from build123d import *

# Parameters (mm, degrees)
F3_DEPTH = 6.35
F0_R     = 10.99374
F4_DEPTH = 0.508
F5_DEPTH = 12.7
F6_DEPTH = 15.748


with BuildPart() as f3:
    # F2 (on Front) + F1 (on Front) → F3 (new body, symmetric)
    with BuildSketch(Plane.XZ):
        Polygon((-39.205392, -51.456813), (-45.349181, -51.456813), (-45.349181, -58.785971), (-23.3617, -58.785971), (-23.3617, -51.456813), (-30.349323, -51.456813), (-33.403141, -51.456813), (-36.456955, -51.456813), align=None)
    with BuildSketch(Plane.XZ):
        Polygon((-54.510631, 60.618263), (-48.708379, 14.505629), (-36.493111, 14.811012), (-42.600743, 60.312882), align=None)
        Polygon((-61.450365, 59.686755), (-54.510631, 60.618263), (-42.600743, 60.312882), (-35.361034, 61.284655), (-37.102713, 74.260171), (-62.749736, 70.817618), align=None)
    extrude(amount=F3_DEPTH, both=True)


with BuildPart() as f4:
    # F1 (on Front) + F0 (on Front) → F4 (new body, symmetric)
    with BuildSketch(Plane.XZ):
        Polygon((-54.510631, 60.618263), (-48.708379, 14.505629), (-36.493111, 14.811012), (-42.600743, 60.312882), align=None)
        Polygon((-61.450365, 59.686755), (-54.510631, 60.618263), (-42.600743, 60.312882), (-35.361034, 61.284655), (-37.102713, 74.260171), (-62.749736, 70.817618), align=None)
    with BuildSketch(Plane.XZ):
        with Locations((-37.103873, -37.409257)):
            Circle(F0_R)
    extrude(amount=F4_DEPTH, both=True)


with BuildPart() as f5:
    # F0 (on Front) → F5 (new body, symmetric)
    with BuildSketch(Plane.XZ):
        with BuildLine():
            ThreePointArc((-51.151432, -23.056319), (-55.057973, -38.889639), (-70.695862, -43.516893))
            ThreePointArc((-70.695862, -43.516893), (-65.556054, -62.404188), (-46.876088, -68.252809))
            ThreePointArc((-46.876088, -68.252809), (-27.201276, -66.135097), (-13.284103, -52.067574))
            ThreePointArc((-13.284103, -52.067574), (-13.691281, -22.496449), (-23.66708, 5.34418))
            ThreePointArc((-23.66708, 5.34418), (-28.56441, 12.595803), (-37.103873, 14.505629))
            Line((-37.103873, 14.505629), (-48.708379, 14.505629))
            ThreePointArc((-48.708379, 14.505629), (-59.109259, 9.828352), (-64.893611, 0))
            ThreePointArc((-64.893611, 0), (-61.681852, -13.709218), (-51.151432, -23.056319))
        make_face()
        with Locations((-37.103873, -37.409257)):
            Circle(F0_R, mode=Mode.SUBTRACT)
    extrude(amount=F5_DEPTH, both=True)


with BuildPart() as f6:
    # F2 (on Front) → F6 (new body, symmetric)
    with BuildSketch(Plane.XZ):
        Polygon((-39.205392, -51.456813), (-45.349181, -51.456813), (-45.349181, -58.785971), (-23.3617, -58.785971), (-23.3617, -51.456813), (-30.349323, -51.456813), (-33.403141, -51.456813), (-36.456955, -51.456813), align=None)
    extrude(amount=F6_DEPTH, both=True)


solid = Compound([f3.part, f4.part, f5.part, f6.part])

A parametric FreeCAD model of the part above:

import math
import FreeCAD as App
import Part
import Sketcher
from FreeCAD import Vector
Q = App.Units.Quantity


def add_polygon(sketch, points):
    """Adds a closed chain of lines whose ends are joined by coincident constraints."""
    first, n = sketch.GeometryCount, len(points)
    for a, b in zip(points, points[1:] + points[:1]):
        sketch.addGeometry(Part.LineSegment(App.Vector(*a, 0), App.Vector(*b, 0)), False)
    for i in range(n):
        sketch.addConstraint(Sketcher.Constraint("Coincident", first + i, 2, first + (i + 1) % n, 1))

doc = App.newDocument("Part")
body = doc.addObject("PartDesign::Body", "Body")
body.AllowCompound = True

# Sketch on XZ plane
sketch1 = body.newObject("Sketcher::SketchObject", "Sketch")
sketch1.AttachmentSupport = (doc.getObject("XZ_Plane"), [""])
sketch1.MapMode = "FlatFace"
add_polygon(sketch1, [(-45, -51), (-45, -59), (-23, -59), (-23, -51)])  # lines 0-3
add_polygon(sketch1, [(-55, 61), (-49, 15), (-36, 15), (-43, 60), (-35, 61), (-37, 74), (-63, 71), (-61, 60)])  # lines 4-11
sketch1.addConstraint([
    Sketcher.Constraint("Vertical", 0),
    Sketcher.Constraint("Horizontal", 1),
    Sketcher.Constraint("Vertical", 2),
    Sketcher.Constraint("Horizontal", 3),
    Sketcher.Constraint("Perpendicular", 6, 7),
    Sketcher.Constraint("Perpendicular", 7, 8),
    Sketcher.Constraint("Perpendicular", 8, 9),
    Sketcher.Constraint("Parallel", 9, 11),
    Sketcher.Constraint("DistanceX", 8, 2, 5, 2, Q("0.0240001 in")),
    Sketcher.Constraint("DistanceX", 1, 1, 1, 2, 21.987481),
    Sketcher.Constraint("DistanceY", 0, 2, 0, 1, 7.329158),
    Sketcher.Constraint("DistanceX", 1, 2, -1, 1, 23.3617),
    Sketcher.Constraint("DistanceY", 0, 2, 4, 2, 73.2916),
    Sketcher.Constraint("DistanceY", 10, 2, 7, 2, 1.5979),
    Sketcher.Constraint("Distance", 6, 45.909948),
    Sketcher.Constraint("DistanceY", 0, 2, -1, 1, 58.785971),
    Sketcher.Constraint("DistanceX", 4, 2, -1, 1, 48.708379),
    Sketcher.Constraint("DistanceX", 5, 2, -1, 1, 36.493111),
    Sketcher.Constraint("DistanceY", -1, 1, 8, 2, 74.260171),
    Sketcher.Constraint("DistanceX", 11, 2, -1, 1, 54.510631),
    Sketcher.Constraint("DistanceY", 5, 2, 6, 2, 45.50187),
    Sketcher.Constraint("DistanceX", 6, 2, 7, 2, 7.239709),
    Sketcher.Constraint("DistanceY", 4, 2, 9, 2, 56.311989),
    Sketcher.Constraint("DistanceX", 9, 2, 10, 2, 1.299371),
])
pad1 = body.newObject("PartDesign::Pad", "Pad")
pad1.Profile = sketch1
pad1.Length = Q("0.5 in")
pad1.Midplane = True
body2 = doc.addObject("PartDesign::Body", "Body001")
body2.AllowCompound = True

# Sketch on XZ plane
sketch2 = body2.newObject("Sketcher::SketchObject", "Sketch001")
sketch2.AttachmentSupport = (doc.getObject("XZ_Plane001"), [""])
sketch2.MapMode = "FlatFace"
add_polygon(sketch2, [(-55, 61), (-49, 15), (-36, 15), (-43, 60), (-35, 61), (-37, 74), (-63, 71), (-61, 60)])  # lines 0-7
sketch2.addGeometry(Part.Circle(Vector(-37, -37, 0), Vector(0, 0, 1), 11), False)  # 8
sketch2.addConstraint([
    Sketcher.Constraint("Perpendicular", 2, 3),
    Sketcher.Constraint("Perpendicular", 3, 4),
    Sketcher.Constraint("Perpendicular", 4, 5),
    Sketcher.Constraint("Parallel", 5, 7),
    Sketcher.Constraint("Diameter", 8, 21.98748),
    Sketcher.Constraint("DistanceX", 4, 2, 1, 2, Q("0.0240001 in")),
    Sketcher.Constraint("DistanceY", 6, 2, 3, 2, 1.5979),
    Sketcher.Constraint("Distance", 2, 45.909948),
    Sketcher.Constraint("DistanceX", 0, 2, -1, 1, 48.708379),
    Sketcher.Constraint("DistanceY", -1, 1, 0, 2, 14.505629),
    Sketcher.Constraint("DistanceX", 1, 2, -1, 1, 36.493111),
    Sketcher.Constraint("DistanceY", -1, 1, 4, 2, 74.260171),
    Sketcher.Constraint("DistanceX", 7, 2, -1, 1, 54.510631),
    Sketcher.Constraint("DistanceY", 8, 3, 1, 2, 52.220269),
    Sketcher.Constraint("DistanceY", 1, 2, 2, 2, 45.50187),
    Sketcher.Constraint("DistanceX", 2, 2, 8, 3, 5.49687),
    Sketcher.Constraint("DistanceX", 2, 2, 3, 2, 7.239709),
    Sketcher.Constraint("DistanceY", 0, 2, 5, 2, 56.311989),
    Sketcher.Constraint("DistanceX", 5, 2, 6, 2, 1.299371),
])
pad2 = body2.newObject("PartDesign::Pad", "Pad001")
pad2.Profile = sketch2
pad2.Length = Q("0.04 in")
pad2.Midplane = True
body3 = doc.addObject("PartDesign::Body", "Body002")

# Sketch on XZ plane
sketch3 = body3.newObject("Sketcher::SketchObject", "Sketch002")
sketch3.AttachmentSupport = (doc.getObject("XZ_Plane002"), [""])
sketch3.MapMode = "FlatFace"
sketch3.addGeometry([
    Part.ArcOfCircle(Part.Circle(Vector(-67, -28, 0), Vector(0, 0, 1), 16), math.radians(-103), math.radians(16)),  # 0
    Part.ArcOfCircle(Part.Circle(Vector(-51, -48, 0), Vector(0, 0, 1), 20), math.radians(167), math.radians(281)),  # 1
    Part.ArcOfCircle(Part.Circle(Vector(-40, -40, 0), Vector(0, 0, 1), 30), math.radians(-103), math.radians(-25)),  # 2
    Part.ArcOfCircle(Part.Circle(Vector(-102, -39, 0), Vector(0, 0, 1), 90), math.radians(-9), math.radians(29)),  # 3
    Part.ArcOfCircle(Part.Circle(Vector(-35, 3, 0), Vector(0, 0, 1), 12), math.radians(12), math.radians(99)),  # 4
    Part.LineSegment(Vector(-37, 15, 0), Vector(-49, 15, 0)),  # 5
    Part.ArcOfCircle(Part.Circle(Vector(-47, -4, 0), Vector(0, 0, 1), 19), math.radians(97), math.radians(167)),  # 6
    Part.ArcOfCircle(Part.Circle(Vector(-42, -2, 0), Vector(0, 0, 1), 23), math.radians(176), math.radians(246)),  # 7
    Part.Circle(Vector(-37, -37, 0), Vector(0, 0, 1), 11),  # 8
], False)
sketch3.addConstraint([
    Sketcher.Constraint("Coincident", 0, 1, 1, 1),
    Sketcher.Constraint("Coincident", 1, 2, 2, 1),
    Sketcher.Constraint("Coincident", 2, 2, 3, 1),
    Sketcher.Constraint("Coincident", 3, 2, 4, 1),
    Sketcher.Constraint("Coincident", 4, 2, 5, 1),
    Sketcher.Constraint("Coincident", 5, 2, 6, 1),
    Sketcher.Constraint("Coincident", 6, 2, 7, 1),
    Sketcher.Constraint("Coincident", 7, 2, 0, 2),
    Sketcher.Constraint("Horizontal", 5),
    Sketcher.Constraint("PointOnObject", 6, 2, -1),
    Sketcher.Constraint("Vertical", 8, 3, 4, 2),
    Sketcher.Constraint("Radius", 2, 29.521002),
    Sketcher.Constraint("Diameter", 8, 21.98748),
    Sketcher.Constraint("Radius", 3, 89.945632),
    Sketcher.Constraint("Radius", 4, 11.84323),
    Sketcher.Constraint("Radius", 6, 18.80206),
    Sketcher.Constraint("Radius", 7, 23.26965),
    Sketcher.Constraint("Radius", 0, 16.393246),
    Sketcher.Constraint("Radius", 1, 20.382987),
    Sketcher.Constraint("DistanceY", 8, 3, 6, 3, Q("1.3085002 in")),
    Sketcher.Constraint("DistanceX", 0, 3, -1, 1, 66.9121),
    Sketcher.Constraint("DistanceY", 1, 3, 4, 3, 51.076299),
    Sketcher.Constraint("DistanceX", 7, 3, 4, 3, 6.457202),
    Sketcher.Constraint("DistanceY", 0, 1, 0, 3, 15.950601),
    Sketcher.Constraint("DistanceX", 5, 2, 3, 2, 25.041299),
    Sketcher.Constraint("DistanceX", 5, 2, 5, 1, 11.604506),
    Sketcher.Constraint("DistanceY", 0, 3, -1, 1, 27.566292),
    Sketcher.Constraint("DistanceX", 2, 3, -1, 1, 40.015221),
    Sketcher.Constraint("DistanceY", 2, 3, -1, 1, 39.540128),
    Sketcher.Constraint("DistanceX", 3, 3, -1, 1, 102.201108),
    Sketcher.Constraint("DistanceX", 7, 3, -1, 1, 41.693338),
    Sketcher.Constraint("DistanceX", 1, 2, -1, 1, 46.876088),
    Sketcher.Constraint("DistanceX", 3, 2, -1, 1, 23.66708),
    Sketcher.Constraint("DistanceX", 6, 2, -1, 1, 64.893611),
])
pad3 = body3.newObject("PartDesign::Pad", "Pad002")
pad3.Profile = sketch3
pad3.Length = Q("1 in")
pad3.Midplane = True
body4 = doc.addObject("PartDesign::Body", "Body003")

# Sketch on XZ plane
sketch4 = body4.newObject("Sketcher::SketchObject", "Sketch003")
sketch4.AttachmentSupport = (doc.getObject("XZ_Plane003"), [""])
sketch4.MapMode = "FlatFace"
add_polygon(sketch4, [(-45, -51), (-45, -59), (-23, -59), (-23, -51)])  # lines 0-3
sketch4.addConstraint([
    Sketcher.Constraint("Vertical", 0),
    Sketcher.Constraint("Horizontal", 1),
    Sketcher.Constraint("Vertical", 2),
    Sketcher.Constraint("Horizontal", 3),
    Sketcher.Constraint("DistanceX", 1, 1, 1, 2, 21.987481),
    Sketcher.Constraint("DistanceY", 0, 2, 0, 1, 7.329158),
    Sketcher.Constraint("DistanceX", 1, 2, -1, 1, 23.3617),
    Sketcher.Constraint("DistanceY", 0, 2, -1, 1, 58.785971),
])
pad4 = body4.newObject("PartDesign::Pad", "Pad003")
pad4.Profile = sketch4
pad4.Length = Q("1.24 in")
pad4.Midplane = True

doc.recompute()
